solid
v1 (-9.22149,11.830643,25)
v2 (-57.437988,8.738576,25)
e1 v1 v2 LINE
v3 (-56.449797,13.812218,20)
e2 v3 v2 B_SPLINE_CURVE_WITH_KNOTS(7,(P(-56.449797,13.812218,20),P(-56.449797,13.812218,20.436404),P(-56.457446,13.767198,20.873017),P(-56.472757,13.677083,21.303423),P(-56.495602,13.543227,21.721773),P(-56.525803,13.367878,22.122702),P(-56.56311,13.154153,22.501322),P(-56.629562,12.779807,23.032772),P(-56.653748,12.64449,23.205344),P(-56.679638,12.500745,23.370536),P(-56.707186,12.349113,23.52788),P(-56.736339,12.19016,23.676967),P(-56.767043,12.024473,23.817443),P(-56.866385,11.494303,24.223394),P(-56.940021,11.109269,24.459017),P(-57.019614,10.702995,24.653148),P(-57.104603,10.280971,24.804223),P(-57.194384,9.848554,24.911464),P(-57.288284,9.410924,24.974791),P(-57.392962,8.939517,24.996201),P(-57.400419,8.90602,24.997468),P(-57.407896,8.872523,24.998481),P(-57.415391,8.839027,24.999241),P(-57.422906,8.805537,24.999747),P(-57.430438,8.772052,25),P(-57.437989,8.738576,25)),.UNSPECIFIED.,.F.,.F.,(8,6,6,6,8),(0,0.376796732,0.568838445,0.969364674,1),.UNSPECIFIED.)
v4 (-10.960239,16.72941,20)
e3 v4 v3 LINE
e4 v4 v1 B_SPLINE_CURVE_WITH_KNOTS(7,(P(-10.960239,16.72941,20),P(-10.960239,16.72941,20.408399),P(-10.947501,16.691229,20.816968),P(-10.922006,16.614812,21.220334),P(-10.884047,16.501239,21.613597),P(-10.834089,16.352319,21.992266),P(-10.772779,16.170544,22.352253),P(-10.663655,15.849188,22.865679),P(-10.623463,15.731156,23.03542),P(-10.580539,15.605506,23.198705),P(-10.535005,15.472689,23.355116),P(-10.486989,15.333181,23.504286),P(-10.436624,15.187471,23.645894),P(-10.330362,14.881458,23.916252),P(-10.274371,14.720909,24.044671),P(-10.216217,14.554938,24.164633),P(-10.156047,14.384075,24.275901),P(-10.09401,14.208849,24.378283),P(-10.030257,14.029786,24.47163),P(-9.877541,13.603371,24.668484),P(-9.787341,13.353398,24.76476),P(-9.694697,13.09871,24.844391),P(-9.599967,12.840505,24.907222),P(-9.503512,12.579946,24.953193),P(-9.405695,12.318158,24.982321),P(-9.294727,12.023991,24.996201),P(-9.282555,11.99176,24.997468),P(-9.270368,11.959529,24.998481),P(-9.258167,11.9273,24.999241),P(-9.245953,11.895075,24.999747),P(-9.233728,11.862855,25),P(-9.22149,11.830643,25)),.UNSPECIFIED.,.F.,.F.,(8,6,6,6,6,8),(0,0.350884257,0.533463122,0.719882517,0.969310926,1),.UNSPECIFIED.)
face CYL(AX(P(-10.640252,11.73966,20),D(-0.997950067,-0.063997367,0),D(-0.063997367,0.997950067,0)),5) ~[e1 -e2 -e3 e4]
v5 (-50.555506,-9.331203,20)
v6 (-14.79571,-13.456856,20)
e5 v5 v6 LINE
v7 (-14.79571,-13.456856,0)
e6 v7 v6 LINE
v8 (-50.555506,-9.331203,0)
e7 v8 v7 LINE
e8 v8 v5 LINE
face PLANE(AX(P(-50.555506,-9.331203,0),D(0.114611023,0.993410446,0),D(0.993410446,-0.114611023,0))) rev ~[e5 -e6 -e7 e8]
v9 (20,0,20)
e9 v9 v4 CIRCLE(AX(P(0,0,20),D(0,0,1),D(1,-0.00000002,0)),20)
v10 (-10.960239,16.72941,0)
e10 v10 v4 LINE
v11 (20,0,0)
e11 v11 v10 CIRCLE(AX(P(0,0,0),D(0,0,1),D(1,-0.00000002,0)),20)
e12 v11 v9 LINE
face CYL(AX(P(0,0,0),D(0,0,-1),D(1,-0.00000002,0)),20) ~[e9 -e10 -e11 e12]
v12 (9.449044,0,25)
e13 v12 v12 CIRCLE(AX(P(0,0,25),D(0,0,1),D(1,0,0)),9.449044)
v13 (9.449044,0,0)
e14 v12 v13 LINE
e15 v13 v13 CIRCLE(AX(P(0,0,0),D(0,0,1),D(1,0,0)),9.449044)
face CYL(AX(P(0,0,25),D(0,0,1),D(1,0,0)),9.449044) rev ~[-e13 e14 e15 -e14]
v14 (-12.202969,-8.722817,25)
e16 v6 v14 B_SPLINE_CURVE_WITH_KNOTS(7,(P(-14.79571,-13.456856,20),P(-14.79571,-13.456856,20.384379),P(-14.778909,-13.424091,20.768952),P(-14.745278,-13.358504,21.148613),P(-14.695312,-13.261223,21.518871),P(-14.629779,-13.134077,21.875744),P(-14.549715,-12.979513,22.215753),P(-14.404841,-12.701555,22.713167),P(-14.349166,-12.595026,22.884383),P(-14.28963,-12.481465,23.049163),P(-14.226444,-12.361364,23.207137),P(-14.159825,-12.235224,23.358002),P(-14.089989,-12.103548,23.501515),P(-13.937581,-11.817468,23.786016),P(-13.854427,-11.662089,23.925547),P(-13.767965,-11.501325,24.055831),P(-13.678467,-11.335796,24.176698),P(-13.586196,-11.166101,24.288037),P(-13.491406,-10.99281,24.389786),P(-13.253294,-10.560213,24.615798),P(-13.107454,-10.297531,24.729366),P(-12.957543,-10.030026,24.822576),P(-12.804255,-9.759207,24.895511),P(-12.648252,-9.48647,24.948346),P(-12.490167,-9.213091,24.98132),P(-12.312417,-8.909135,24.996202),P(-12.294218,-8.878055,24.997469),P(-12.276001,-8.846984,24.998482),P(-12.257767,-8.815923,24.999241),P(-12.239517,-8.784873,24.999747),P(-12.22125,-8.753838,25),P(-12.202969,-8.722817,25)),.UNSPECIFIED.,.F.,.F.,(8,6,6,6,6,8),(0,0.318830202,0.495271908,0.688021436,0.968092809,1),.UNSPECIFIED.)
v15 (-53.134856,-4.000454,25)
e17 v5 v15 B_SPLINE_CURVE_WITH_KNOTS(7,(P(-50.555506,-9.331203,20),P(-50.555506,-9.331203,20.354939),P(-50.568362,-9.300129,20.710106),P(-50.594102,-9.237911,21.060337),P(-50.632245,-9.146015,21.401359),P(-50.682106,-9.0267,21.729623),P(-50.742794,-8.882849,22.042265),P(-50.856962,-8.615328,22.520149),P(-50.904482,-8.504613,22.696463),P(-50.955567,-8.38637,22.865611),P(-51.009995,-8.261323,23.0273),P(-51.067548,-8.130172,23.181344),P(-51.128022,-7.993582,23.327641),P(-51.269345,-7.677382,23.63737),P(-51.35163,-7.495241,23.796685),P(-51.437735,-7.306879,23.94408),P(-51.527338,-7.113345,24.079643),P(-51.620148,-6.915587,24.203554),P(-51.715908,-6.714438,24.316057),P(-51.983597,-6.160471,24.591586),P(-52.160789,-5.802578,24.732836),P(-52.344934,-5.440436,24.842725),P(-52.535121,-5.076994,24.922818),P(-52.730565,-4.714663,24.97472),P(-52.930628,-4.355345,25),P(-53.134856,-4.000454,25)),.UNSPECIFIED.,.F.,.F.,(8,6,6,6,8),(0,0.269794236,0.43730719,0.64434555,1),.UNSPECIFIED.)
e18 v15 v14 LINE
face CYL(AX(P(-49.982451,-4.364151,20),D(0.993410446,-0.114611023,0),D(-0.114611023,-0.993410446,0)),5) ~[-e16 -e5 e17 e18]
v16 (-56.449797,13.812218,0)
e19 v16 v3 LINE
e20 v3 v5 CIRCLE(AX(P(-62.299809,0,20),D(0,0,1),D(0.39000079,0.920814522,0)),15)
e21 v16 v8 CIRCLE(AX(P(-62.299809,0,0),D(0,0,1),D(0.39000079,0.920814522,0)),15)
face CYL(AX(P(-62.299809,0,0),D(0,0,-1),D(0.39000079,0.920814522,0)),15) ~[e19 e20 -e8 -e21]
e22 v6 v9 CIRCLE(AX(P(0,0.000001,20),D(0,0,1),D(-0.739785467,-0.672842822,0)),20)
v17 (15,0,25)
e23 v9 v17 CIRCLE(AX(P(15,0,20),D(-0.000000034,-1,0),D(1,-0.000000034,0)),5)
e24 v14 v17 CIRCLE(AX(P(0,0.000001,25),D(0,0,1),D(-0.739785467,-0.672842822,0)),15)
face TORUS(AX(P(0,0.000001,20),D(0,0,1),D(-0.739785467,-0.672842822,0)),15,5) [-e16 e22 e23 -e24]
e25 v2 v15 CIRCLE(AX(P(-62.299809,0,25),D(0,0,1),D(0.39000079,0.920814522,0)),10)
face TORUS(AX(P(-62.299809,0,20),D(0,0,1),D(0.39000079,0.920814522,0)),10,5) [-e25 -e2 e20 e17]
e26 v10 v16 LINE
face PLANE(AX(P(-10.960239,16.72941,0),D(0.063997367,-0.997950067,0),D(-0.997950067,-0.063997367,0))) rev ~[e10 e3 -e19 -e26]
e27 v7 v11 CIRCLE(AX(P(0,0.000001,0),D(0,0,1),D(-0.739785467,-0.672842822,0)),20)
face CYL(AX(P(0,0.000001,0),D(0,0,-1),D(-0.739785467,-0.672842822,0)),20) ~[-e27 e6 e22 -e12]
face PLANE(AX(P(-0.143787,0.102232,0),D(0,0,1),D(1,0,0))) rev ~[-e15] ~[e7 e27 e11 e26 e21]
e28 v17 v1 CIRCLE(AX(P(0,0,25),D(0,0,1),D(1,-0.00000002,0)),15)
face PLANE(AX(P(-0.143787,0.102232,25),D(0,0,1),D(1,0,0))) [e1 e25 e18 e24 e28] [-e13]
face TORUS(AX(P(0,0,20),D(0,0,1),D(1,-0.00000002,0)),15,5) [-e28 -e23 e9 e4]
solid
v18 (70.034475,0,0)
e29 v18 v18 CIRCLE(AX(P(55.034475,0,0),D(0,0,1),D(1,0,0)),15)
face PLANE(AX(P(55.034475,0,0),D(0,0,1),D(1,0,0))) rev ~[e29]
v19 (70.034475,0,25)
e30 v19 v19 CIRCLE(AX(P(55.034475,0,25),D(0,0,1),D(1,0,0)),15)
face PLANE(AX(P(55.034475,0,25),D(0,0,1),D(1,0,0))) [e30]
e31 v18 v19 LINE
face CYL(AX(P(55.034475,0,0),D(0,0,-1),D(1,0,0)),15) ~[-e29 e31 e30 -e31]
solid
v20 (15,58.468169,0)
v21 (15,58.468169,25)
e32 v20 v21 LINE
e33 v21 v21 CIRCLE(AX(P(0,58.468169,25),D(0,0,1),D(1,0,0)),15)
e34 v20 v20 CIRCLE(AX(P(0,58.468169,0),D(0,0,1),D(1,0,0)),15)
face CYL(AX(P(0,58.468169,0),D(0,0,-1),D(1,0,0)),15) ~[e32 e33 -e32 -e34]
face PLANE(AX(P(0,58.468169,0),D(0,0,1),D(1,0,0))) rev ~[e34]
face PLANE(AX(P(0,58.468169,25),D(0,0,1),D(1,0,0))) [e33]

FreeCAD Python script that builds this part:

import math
import FreeCAD as App
import Part
import Sketcher
Q = App.Units.Quantity


def edges_at(feature, points):
    """Names of the edges that pass closest to the given points."""
    edges = feature.Shape.Edges
    near = lambda p: min(range(len(edges)), key=lambda i: edges[i].distToShape(Part.Vertex(*p))[0])
    return sorted({f"Edge{near(p) + 1}" for p in points})

doc = App.newDocument("Part")
body = doc.addObject("PartDesign::Body", "Body")
body.AllowCompound = True

sketch1 = body.newObject("Sketcher::SketchObject", "Sketch")
sketch1.AttachmentSupport = (doc.getObject("XY_Plane"), [""])
sketch1.MapMode = "FlatFace"
sketch1.addGeometry(Part.ArcOfCircle(Part.Circle(App.Vector(0, 0, 0), App.Vector(0, 0, 1), 20), math.radians(-138), math.radians(0)), False)
sketch1.addGeometry(Part.ArcOfCircle(Part.Circle(App.Vector(0, 0, 0), App.Vector(0, 0, 1), 20), math.radians(0), math.radians(123)), False)
sketch1.addGeometry(Part.LineSegment(App.Vector(-11, 17, 0), App.Vector(-56, 14, 0)), False)
sketch1.addGeometry(Part.ArcOfCircle(Part.Circle(App.Vector(-62, 0, 0), App.Vector(0, 0, 1), 15), math.radians(67), math.radians(322)), False)
sketch1.addGeometry(Part.LineSegment(App.Vector(-51, -9, 0), App.Vector(-15, -13, 0)), False)
sketch1.addGeometry(Part.Circle(App.Vector(0, 58, 0), App.Vector(0, 0, 1), 15), False)
sketch1.addGeometry(Part.Circle(App.Vector(55, 0, 0), App.Vector(0, 0, 1), 15), False)
sketch1.addConstraint(Sketcher.Constraint("Tangent", 0, 2, 1, 1))
sketch1.addConstraint(Sketcher.Constraint("Coincident", 1, 2, 2, 1))
sketch1.addConstraint(Sketcher.Constraint("Coincident", 2, 2, 3, 1))
sketch1.addConstraint(Sketcher.Constraint("Coincident", 3, 2, 4, 1))
sketch1.addConstraint(Sketcher.Constraint("Coincident", 4, 2, 0, 1))
sketch1.addConstraint(Sketcher.Constraint("Coincident", 0, 3, -1, 1))
sketch1.addConstraint(Sketcher.Constraint("Equal", 0, 1))
sketch1.addConstraint(Sketcher.Constraint("Equal", 3, 5))
sketch1.addConstraint(Sketcher.Constraint("Equal", 5, 6))
sketch1.addConstraint(Sketcher.Constraint("PointOnObject", 3, 3, -1))
sketch1.addConstraint(Sketcher.Constraint("PointOnObject", 5, 3, -2))
sketch1.addConstraint(Sketcher.Constraint("PointOnObject", 6, 3, -1))
sketch1.addConstraint(Sketcher.Constraint("PointOnObject", 0, 2, -1))
sketch1.addConstraint(Sketcher.Constraint("Diameter", 5, Q("30 mm")))
sketch1.addConstraint(Sketcher.Constraint("Radius", 0, Q("20 mm")))
sketch1.addConstraint(Sketcher.Constraint("Distance", 2, Q("45.583 mm")))
sketch1.addConstraint(Sketcher.Constraint("Distance", 4, Q("35.997 mm")))
sketch1.addConstraint(Sketcher.Constraint("DistanceX", 3, 3, -1, 1, Q("62.299809 mm")))
sketch1.addConstraint(Sketcher.Constraint("DistanceY", -1, 1, 5, 3, Q("58.468169 mm")))
sketch1.addConstraint(Sketcher.Constraint("DistanceX", 1, 2, -1, 1, Q("10.960239 mm")))
sketch1.addConstraint(Sketcher.Constraint("DistanceX", 4, 2, -1, 1, Q("14.79571 mm")))
sketch1.addConstraint(Sketcher.Constraint("DistanceX", -1, 1, 6, 3, Q("55.034475 mm")))
pad1 = body.newObject("PartDesign::Pad", "Pad")
pad1.Profile = sketch1
pad1.Length = 25
doc.recompute()

fillet = body.newObject("PartDesign::Fillet", "Fillet")
fillet.Base = (pad1, edges_at(pad1, [
    (-32.676, -11.394, 25),
    (-76.836, -3.702, 25),
    (7.214, -18.654, 25),
    (9.508, 17.596, 25),
    (-33.705, 15.271, 25),
]))
fillet.Radius = 5

sketch2 = body.newObject("Sketcher::SketchObject", "Sketch001")
sketch2.AttachmentSupport = (doc.getObject("XY_Plane"), [""])
sketch2.MapMode = "FlatFace"
sketch2.AttachmentOffset = App.Placement(App.Vector(0, 0, 25), App.Rotation())
sketch2.addGeometry(Part.Circle(App.Vector(0, 0, 0), App.Vector(0, 0, 1), 9), False)
sketch2.addConstraint(Sketcher.Constraint("Coincident", 0, 3, -1, 1))
sketch2.addConstraint(Sketcher.Constraint("Diameter", 0, Q("18.898088 mm")))
pocket1 = body.newObject("PartDesign::Pocket", "Pocket")
pocket1.Profile = sketch2
pocket1.Length = 25

doc.recompute()
